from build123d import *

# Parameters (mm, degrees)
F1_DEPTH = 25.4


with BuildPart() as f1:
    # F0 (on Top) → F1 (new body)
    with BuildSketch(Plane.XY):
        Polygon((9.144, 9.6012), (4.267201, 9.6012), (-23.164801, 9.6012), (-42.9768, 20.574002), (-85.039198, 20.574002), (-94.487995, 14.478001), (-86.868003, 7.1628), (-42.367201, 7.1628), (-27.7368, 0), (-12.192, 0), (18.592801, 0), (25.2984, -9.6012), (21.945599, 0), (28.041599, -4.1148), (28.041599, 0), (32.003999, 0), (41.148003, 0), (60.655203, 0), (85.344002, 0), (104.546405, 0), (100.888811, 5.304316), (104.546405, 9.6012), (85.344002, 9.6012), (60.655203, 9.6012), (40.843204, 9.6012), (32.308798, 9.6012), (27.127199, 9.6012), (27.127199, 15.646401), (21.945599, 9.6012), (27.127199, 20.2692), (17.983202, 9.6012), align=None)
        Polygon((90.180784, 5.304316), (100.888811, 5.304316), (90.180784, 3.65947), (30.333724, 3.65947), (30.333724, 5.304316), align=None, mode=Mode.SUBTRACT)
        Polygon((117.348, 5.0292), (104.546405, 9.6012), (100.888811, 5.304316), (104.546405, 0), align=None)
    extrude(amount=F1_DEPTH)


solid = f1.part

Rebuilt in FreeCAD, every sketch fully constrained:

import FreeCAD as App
import Part
import Sketcher
from FreeCAD import Vector
Q = App.Units.Quantity

doc = App.newDocument("Part")
params = doc.addObject("Spreadsheet::Sheet", "Params")
for row, (alias, value) in enumerate([
    ("sketch1_width", "1.6200001 in"),
    ("sketch1_width2", "1.6559999 in"),
    ("sketch1_width3", "1.7520001 in"),
    ("sketch1_width4", "1.824 in"),
    ("sketch1_height", "0.162 in"),
    ("pad1_length", "1 in"),
], start=1):
    params.set(f"A{row}", alias)
    params.set(f"B{row}", "=" + value)
    params.setAlias(f"B{row}", alias)

body = doc.addObject("PartDesign::Body", "Body")

# Sketch on XY plane
sketch1 = body.newObject("Sketcher::SketchObject", "Sketch")
sketch1.AttachmentSupport = (doc.getObject("XY_Plane"), [""])
sketch1.MapMode = "FlatFace"
sketch1.addGeometry([
    Part.LineSegment(Vector(27.127199, 20.2692, 0), Vector(17.983202, 9.6012, 0)),  # 0
    Part.LineSegment(Vector(17.983202, 9.6012, 0), Vector(-23.164801, 9.6012, 0)),  # 1
    Part.LineSegment(Vector(-23.164801, 9.6012, 0), Vector(-42.9768, 20.574002, 0)),  # 2
    Part.LineSegment(Vector(-42.9768, 20.574002, 0), Vector(-85.039198, 20.574002, 0)),  # 3
    Part.LineSegment(Vector(-85.039198, 20.574002, 0), Vector(-94.487995, 14.478001, 0)),  # 4
    Part.LineSegment(Vector(-94.487995, 14.478001, 0), Vector(-86.868003, 7.1628, 0)),  # 5
    Part.LineSegment(Vector(-86.868003, 7.1628, 0), Vector(-42.367201, 7.1628, 0)),  # 6
    Part.LineSegment(Vector(-42.367201, 7.1628, 0), Vector(-27.7368, 0, 0)),  # 7
    Part.LineSegment(Vector(-27.7368, 0, 0), Vector(18.592801, 0, 0)),  # 8
    Part.LineSegment(Vector(18.592801, 0, 0), Vector(25.2984, -9.6012, 0)),  # 9
    Part.LineSegment(Vector(25.2984, -9.6012, 0), Vector(21.945599, 0, 0)),  # 10
    Part.LineSegment(Vector(21.945599, 0, 0), Vector(28.041599, -4.1148, 0)),  # 11
    Part.LineSegment(Vector(28.041599, -4.1148, 0), Vector(28.041599, 0, 0)),  # 12
    Part.LineSegment(Vector(28.041599, 0, 0), Vector(104.546405, 0, 0)),  # 13
    Part.LineSegment(Vector(104.546405, 0, 0), Vector(117.348, 5.0292, 0)),  # 14
    Part.LineSegment(Vector(117.348, 5.0292, 0), Vector(104.546405, 9.6012, 0)),  # 15
    Part.LineSegment(Vector(104.546405, 9.6012, 0), Vector(27.127199, 9.6012, 0)),  # 16
    Part.LineSegment(Vector(27.127199, 9.6012, 0), Vector(27.127199, 15.646401, 0)),  # 17
    Part.LineSegment(Vector(27.127199, 15.646401, 0), Vector(21.945599, 9.6012, 0)),  # 18
    Part.LineSegment(Vector(21.945599, 9.6012, 0), Vector(27.127199, 20.2692, 0)),  # 19
    Part.LineSegment(Vector(30.333724, 5.304316, 0), Vector(100.888811, 5.304316, 0)),  # 20
    Part.LineSegment(Vector(100.888811, 5.304316, 0), Vector(90.180784, 3.65947, 0)),  # 21
    Part.LineSegment(Vector(90.180784, 3.65947, 0), Vector(30.333724, 3.65947, 0)),  # 22
    Part.LineSegment(Vector(30.333724, 3.65947, 0), Vector(30.333724, 5.304316, 0)),  # 23
], False)
sketch1.addConstraint([
    Sketcher.Constraint("Coincident", 0, 2, 1, 1),
    Sketcher.Constraint("Coincident", 1, 2, 2, 1),
    Sketcher.Constraint("Coincident", 2, 2, 3, 1),
    Sketcher.Constraint("Coincident", 3, 2, 4, 1),
    Sketcher.Constraint("Coincident", 4, 2, 5, 1),
    Sketcher.Constraint("Coincident", 5, 2, 6, 1),
    Sketcher.Constraint("Coincident", 6, 2, 7, 1),
    Sketcher.Constraint("Coincident", 7, 2, 8, 1),
    Sketcher.Constraint("Coincident", 8, 2, 9, 1),
    Sketcher.Constraint("Coincident", 9, 2, 10, 1),
    Sketcher.Constraint("Coincident", 10, 2, 11, 1),
    Sketcher.Constraint("Coincident", 11, 2, 12, 1),
    Sketcher.Constraint("Coincident", 12, 2, 13, 1),
    Sketcher.Constraint("Coincident", 13, 2, 14, 1),
    Sketcher.Constraint("Coincident", 14, 2, 15, 1),
    Sketcher.Constraint("Coincident", 15, 2, 16, 1),
    Sketcher.Constraint("Coincident", 16, 2, 17, 1),
    Sketcher.Constraint("Coincident", 17, 2, 18, 1),
    Sketcher.Constraint("Coincident", 18, 2, 19, 1),
    Sketcher.Constraint("Coincident", 19, 2, 0, 1),
    Sketcher.Constraint("Coincident", 20, 2, 21, 1),
    Sketcher.Constraint("Coincident", 21, 2, 22, 1),
    Sketcher.Constraint("Coincident", 22, 2, 23, 1),
    Sketcher.Constraint("Coincident", 23, 2, 20, 1),
    Sketcher.Constraint("Horizontal", 1),
    Sketcher.Constraint("Horizontal", 3),
    Sketcher.Constraint("Horizontal", 6),
    Sketcher.Constraint("Horizontal", 8),
    Sketcher.Constraint("Vertical", 12),
    Sketcher.Constraint("Horizontal", 13),
    Sketcher.Constraint("Horizontal", 16),
    Sketcher.Constraint("Vertical", 17),
    Sketcher.Constraint("Horizontal", 20),
    Sketcher.Constraint("Horizontal", 22),
    Sketcher.Constraint("Vertical", 23),
    Sketcher.Constraint("PointOnObject", 7, 2, -1),
    Sketcher.Constraint("PointOnObject", 10, 2, -1),
    Sketcher.Constraint("PointOnObject", 12, 2, -1),
    Sketcher.Constraint("Parallel", 0, 18),
    Sketcher.Constraint("Horizontal", 1, 2, 15, 2),
    Sketcher.Constraint("Horizontal", 16, 2, 18, 2),
    Sketcher.Constraint("Vertical", 13, 2, 15, 2),
    Sketcher.Constraint("Vertical", 10, 2, 18, 2),
    Sketcher.Constraint("Vertical", 17, 2, 19, 2),
    Sketcher.Constraint("DistanceX", 1, 2, 1, 1, Q("1.6200001 in")),
    Sketcher.Constraint("DistanceX", 2, 2, 0, 2, Q("2.4000001 in")),
    Sketcher.Constraint("DistanceX", 2, 2, 7, 2, Q("0.6 in")),
    Sketcher.Constraint("DistanceX", 6, 2, 8, 2, Q("2.4000001 in")),
    Sketcher.Constraint("DistanceX", 3, 2, 3, 1, Q("1.6559999 in")),
    Sketcher.Constraint("DistanceX", 6, 1, 6, 2, Q("1.7520001 in")),
    Sketcher.Constraint("DistanceX", 8, 1, 8, 2, Q("1.824 in")),
    Sketcher.Constraint("DistanceY", 12, 1, 12, 2, Q("0.162 in")),
    Sketcher.Constraint("DistanceY", 17, 1, 17, 2, Q("0.238 in")),
    Sketcher.Constraint("DistanceY", -1, 1, 2, 2, Q("0.8100001 in")),
    Sketcher.Constraint("DistanceX", 4, 2, -1, 1, Q("3.7199998 in")),
    Sketcher.Constraint("DistanceY", -1, 1, 4, 2, Q("0.57 in")),
    Sketcher.Constraint("DistanceX", 5, 2, -1, 1, Q("3.4200001 in")),
    Sketcher.Constraint("DistanceX", -1, 1, 14, 2, Q("4.62 in")),
    Sketcher.Constraint("DistanceY", 9, 2, 6, 2, Q("0.66 in")),
    Sketcher.Constraint("DistanceX", 10, 2, 11, 2, Q("0.24 in")),
    Sketcher.Constraint("DistanceY", 11, 2, 0, 2, Q("0.54 in")),
    Sketcher.Constraint("DistanceX", 9, 2, 13, 2, Q("3.1200002 in")),
    Sketcher.Constraint("DistanceY", 11, 2, 14, 2, Q("0.36 in")),
    Sketcher.Constraint("DistanceX", 0, 2, 16, 2, Q("0.3599999 in")),
    Sketcher.Constraint("DistanceY", 16, 2, 19, 2, Q("0.42 in")),
    Sketcher.Constraint("DistanceY", -1, 1, 5, 2, Q("0.282 in")),
    Sketcher.Constraint("DistanceX", -1, 1, 9, 2, Q("0.996 in")),
    Sketcher.Constraint("DistanceX", 22, 2, 22, 1, Q("59.84706 mm")),
    Sketcher.Constraint("Distance", 21, Q("10.833622 mm")),
    Sketcher.Constraint("DistanceX", 20, 1, 20, 2, Q("70.555087 mm")),
    Sketcher.Constraint("DistanceX", -1, 1, 20, 2, Q("100.888811 mm")),
    Sketcher.Constraint("DistanceY", -1, 1, 21, 2, Q("3.65947 mm")),
])
sketch1.setExpression("Constraints[44]", "Params.sketch1_width")
sketch1.setExpression("Constraints[48]", "Params.sketch1_width2")
sketch1.setExpression("Constraints[49]", "Params.sketch1_width3")
sketch1.setExpression("Constraints[50]", "Params.sketch1_width4")
sketch1.setExpression("Constraints[51]", "Params.sketch1_height")
pad1 = body.newObject("PartDesign::Pad", "Pad")
pad1.Profile = sketch1
pad1.setExpression("Length", "Params.pad1_length")

doc.recompute()
